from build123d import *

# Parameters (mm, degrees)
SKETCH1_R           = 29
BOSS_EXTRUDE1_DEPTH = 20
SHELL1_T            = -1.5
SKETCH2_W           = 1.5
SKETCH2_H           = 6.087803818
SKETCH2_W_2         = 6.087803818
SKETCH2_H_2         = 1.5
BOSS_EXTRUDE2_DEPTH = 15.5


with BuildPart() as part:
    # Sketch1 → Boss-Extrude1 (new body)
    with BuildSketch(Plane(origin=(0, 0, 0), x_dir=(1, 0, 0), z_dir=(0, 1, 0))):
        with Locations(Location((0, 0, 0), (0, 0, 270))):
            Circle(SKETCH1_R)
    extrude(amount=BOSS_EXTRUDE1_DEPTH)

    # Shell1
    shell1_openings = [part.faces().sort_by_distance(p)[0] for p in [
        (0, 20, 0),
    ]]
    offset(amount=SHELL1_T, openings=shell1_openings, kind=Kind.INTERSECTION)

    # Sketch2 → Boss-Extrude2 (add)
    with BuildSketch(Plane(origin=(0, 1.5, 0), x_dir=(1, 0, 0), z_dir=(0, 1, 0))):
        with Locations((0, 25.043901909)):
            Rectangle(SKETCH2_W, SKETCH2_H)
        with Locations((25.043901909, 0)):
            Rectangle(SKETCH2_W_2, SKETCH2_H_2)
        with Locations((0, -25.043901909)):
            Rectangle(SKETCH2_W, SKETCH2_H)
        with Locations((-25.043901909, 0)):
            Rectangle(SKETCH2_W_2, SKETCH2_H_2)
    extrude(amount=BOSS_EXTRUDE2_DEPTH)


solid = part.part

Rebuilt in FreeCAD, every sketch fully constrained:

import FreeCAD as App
import Part
import Sketcher


def faces_at(feature, points):
    """Names of the faces that lie closest to the given points."""
    faces = feature.Shape.Faces
    near = lambda p: min(range(len(faces)), key=lambda i: faces[i].distToShape(Part.Vertex(*p))[0])
    return sorted({f"Face{near(p) + 1}" for p in points})

doc = App.newDocument("Part")
params = doc.addObject("Spreadsheet::Sheet", "Params")
for row, (alias, value) in enumerate([
    ("sketch1_diameter", "58 mm"),
    ("pad1_length", "20 mm"),
    ("thickness_wall", "1.5 mm"),
    ("sketch2_width", "1.5 mm"),
    ("pad2_length", "15.5 mm"),
], start=1):
    params.set(f"A{row}", alias)
    params.set(f"B{row}", "=" + value)
    params.setAlias(f"B{row}", alias)

body = doc.addObject("PartDesign::Body", "Body")

sketch1 = doc.addObject("Sketcher::SketchObject", "Sketch")
body.addObject(sketch1)
sketch1.AttachmentSupport = (doc.XZ_Plane, [""])
sketch1.MapMode = "FlatFace"
sketch1.addGeometry(Part.Circle(App.Vector(0, 0, 0), App.Vector(0, 0, 1), 29), False)
sketch1.addConstraint([
    Sketcher.Constraint("Coincident", 0, 3, -1, 1),
    Sketcher.Constraint("Diameter", 0, 58.0),
])
sketch1.setExpression("Constraints[1]", "Params.sketch1_diameter")
pad1 = doc.addObject("PartDesign::Pad", "Pad")
body.addObject(pad1)
pad1.Profile = sketch1
pad1.setExpression("Length", "Params.pad1_length")
pad1.Reversed = True
doc.recompute()

thickness = doc.addObject("PartDesign::Thickness", "Thickness")
body.addObject(thickness)
thickness.Base = (pad1, faces_at(pad1, [(0, 20, 0)]))
thickness.setExpression("Value", "Params.thickness_wall")
thickness.Reversed = True
thickness.Join = "Intersection"

sketch2 = doc.addObject("Sketcher::SketchObject", "Sketch001")
body.addObject(sketch2)
sketch2.AttachmentSupport = (doc.XZ_Plane, [""])
sketch2.MapMode = "FlatFace"
sketch2.AttachmentOffset = App.Placement(App.Vector(0, 0, -1.5), App.Rotation())
sketch2.addGeometry([
    Part.LineSegment(App.Vector(-0.8, -28.1, 0), App.Vector(-0.8, -22, 0)),
    Part.LineSegment(App.Vector(-0.8, -22, 0), App.Vector(0.8, -22, 0)),
    Part.LineSegment(App.Vector(0.8, -22, 0), App.Vector(0.8, -28.1, 0)),
    Part.LineSegment(App.Vector(0.8, -28.1, 0), App.Vector(-0.8, -28.1, 0)),
    Part.LineSegment(App.Vector(22, -0.8, 0), App.Vector(22, 0.8, 0)),
    Part.LineSegment(App.Vector(22, 0.8, 0), App.Vector(28.1, 0.8, 0)),
    Part.LineSegment(App.Vector(28.1, 0.8, 0), App.Vector(28.1, -0.8, 0)),
    Part.LineSegment(App.Vector(28.1, -0.8, 0), App.Vector(22, -0.8, 0)),
    Part.LineSegment(App.Vector(-0.8, 22, 0), App.Vector(-0.8, 28.1, 0)),
    Part.LineSegment(App.Vector(-0.8, 28.1, 0), App.Vector(0.8, 28.1, 0)),
    Part.LineSegment(App.Vector(0.8, 28.1, 0), App.Vector(0.8, 22, 0)),
    Part.LineSegment(App.Vector(0.8, 22, 0), App.Vector(-0.8, 22, 0)),
    Part.LineSegment(App.Vector(-28.1, -0.8, 0), App.Vector(-28.1, 0.8, 0)),
    Part.LineSegment(App.Vector(-28.1, 0.8, 0), App.Vector(-22, 0.8, 0)),
    Part.LineSegment(App.Vector(-22, 0.8, 0), App.Vector(-22, -0.8, 0)),
    Part.LineSegment(App.Vector(-22, -0.8, 0), App.Vector(-28.1, -0.8, 0)),
], False)
sketch2.addConstraint([
    Sketcher.Constraint("Coincident", 0, 2, 1, 1),
    Sketcher.Constraint("Coincident", 1, 2, 2, 1),
    Sketcher.Constraint("Coincident", 2, 2, 3, 1),
    Sketcher.Constraint("Coincident", 3, 2, 0, 1),
    Sketcher.Constraint("Coincident", 4, 2, 5, 1),
    Sketcher.Constraint("Coincident", 5, 2, 6, 1),
    Sketcher.Constraint("Coincident", 6, 2, 7, 1),
    Sketcher.Constraint("Coincident", 7, 2, 4, 1),
    Sketcher.Constraint("Coincident", 8, 2, 9, 1),
    Sketcher.Constraint("Coincident", 9, 2, 10, 1),
    Sketcher.Constraint("Coincident", 10, 2, 11, 1),
    Sketcher.Constraint("Coincident", 11, 2, 8, 1),
    Sketcher.Constraint("Coincident", 12, 2, 13, 1),
    Sketcher.Constraint("Coincident", 13, 2, 14, 1),
    Sketcher.Constraint("Coincident", 14, 2, 15, 1),
    Sketcher.Constraint("Coincident", 15, 2, 12, 1),
    Sketcher.Constraint("Vertical", 0),
    Sketcher.Constraint("Horizontal", 1),
    Sketcher.Constraint("Vertical", 2),
    Sketcher.Constraint("Horizontal", 3),
    Sketcher.Constraint("Vertical", 4),
    Sketcher.Constraint("Horizontal", 5),
    Sketcher.Constraint("Vertical", 6),
    Sketcher.Constraint("Horizontal", 7),
    Sketcher.Constraint("Vertical", 8),
    Sketcher.Constraint("Horizontal", 9),
    Sketcher.Constraint("Vertical", 10),
    Sketcher.Constraint("Horizontal", 11),
    Sketcher.Constraint("Vertical", 12),
    Sketcher.Constraint("Horizontal", 13),
    Sketcher.Constraint("Vertical", 14),
    Sketcher.Constraint("Horizontal", 15),
    Sketcher.Constraint("Symmetric", 2, 2, 8, 2, -1, 1),
    Sketcher.Constraint("Symmetric", 0, 2, 10, 2, -1, 1),
    Sketcher.Constraint("Symmetric", 6, 2, 12, 2, -1, 1),
    Sketcher.Constraint("Symmetric", 4, 2, 14, 2, -1, 1),
    Sketcher.Constraint("Horizontal", 5, 2, 12, 2),
    Sketcher.Constraint("Vertical", 3, 2, 8, 2),
    Sketcher.Constraint("Equal", 15, 0),
    Sketcher.Constraint("Equal", 11, 4),
    Sketcher.Constraint("DistanceX", 1, 1, 1, 2, 1.5),
    Sketcher.Constraint("DistanceY", 0, 2, -1, 1, 22.0),
    Sketcher.Constraint("DistanceX", -1, 1, 4, 2, 22.0),
    Sketcher.Constraint("DistanceX", 5, 1, 5, 2, 6.087804),
])
sketch2.setExpression("Constraints[40]", "Params.sketch2_width")
pad2 = doc.addObject("PartDesign::Pad", "Pad001")
body.addObject(pad2)
pad2.Profile = sketch2
pad2.setExpression("Length", "Params.pad2_length")
pad2.Reversed = True

doc.recompute()
